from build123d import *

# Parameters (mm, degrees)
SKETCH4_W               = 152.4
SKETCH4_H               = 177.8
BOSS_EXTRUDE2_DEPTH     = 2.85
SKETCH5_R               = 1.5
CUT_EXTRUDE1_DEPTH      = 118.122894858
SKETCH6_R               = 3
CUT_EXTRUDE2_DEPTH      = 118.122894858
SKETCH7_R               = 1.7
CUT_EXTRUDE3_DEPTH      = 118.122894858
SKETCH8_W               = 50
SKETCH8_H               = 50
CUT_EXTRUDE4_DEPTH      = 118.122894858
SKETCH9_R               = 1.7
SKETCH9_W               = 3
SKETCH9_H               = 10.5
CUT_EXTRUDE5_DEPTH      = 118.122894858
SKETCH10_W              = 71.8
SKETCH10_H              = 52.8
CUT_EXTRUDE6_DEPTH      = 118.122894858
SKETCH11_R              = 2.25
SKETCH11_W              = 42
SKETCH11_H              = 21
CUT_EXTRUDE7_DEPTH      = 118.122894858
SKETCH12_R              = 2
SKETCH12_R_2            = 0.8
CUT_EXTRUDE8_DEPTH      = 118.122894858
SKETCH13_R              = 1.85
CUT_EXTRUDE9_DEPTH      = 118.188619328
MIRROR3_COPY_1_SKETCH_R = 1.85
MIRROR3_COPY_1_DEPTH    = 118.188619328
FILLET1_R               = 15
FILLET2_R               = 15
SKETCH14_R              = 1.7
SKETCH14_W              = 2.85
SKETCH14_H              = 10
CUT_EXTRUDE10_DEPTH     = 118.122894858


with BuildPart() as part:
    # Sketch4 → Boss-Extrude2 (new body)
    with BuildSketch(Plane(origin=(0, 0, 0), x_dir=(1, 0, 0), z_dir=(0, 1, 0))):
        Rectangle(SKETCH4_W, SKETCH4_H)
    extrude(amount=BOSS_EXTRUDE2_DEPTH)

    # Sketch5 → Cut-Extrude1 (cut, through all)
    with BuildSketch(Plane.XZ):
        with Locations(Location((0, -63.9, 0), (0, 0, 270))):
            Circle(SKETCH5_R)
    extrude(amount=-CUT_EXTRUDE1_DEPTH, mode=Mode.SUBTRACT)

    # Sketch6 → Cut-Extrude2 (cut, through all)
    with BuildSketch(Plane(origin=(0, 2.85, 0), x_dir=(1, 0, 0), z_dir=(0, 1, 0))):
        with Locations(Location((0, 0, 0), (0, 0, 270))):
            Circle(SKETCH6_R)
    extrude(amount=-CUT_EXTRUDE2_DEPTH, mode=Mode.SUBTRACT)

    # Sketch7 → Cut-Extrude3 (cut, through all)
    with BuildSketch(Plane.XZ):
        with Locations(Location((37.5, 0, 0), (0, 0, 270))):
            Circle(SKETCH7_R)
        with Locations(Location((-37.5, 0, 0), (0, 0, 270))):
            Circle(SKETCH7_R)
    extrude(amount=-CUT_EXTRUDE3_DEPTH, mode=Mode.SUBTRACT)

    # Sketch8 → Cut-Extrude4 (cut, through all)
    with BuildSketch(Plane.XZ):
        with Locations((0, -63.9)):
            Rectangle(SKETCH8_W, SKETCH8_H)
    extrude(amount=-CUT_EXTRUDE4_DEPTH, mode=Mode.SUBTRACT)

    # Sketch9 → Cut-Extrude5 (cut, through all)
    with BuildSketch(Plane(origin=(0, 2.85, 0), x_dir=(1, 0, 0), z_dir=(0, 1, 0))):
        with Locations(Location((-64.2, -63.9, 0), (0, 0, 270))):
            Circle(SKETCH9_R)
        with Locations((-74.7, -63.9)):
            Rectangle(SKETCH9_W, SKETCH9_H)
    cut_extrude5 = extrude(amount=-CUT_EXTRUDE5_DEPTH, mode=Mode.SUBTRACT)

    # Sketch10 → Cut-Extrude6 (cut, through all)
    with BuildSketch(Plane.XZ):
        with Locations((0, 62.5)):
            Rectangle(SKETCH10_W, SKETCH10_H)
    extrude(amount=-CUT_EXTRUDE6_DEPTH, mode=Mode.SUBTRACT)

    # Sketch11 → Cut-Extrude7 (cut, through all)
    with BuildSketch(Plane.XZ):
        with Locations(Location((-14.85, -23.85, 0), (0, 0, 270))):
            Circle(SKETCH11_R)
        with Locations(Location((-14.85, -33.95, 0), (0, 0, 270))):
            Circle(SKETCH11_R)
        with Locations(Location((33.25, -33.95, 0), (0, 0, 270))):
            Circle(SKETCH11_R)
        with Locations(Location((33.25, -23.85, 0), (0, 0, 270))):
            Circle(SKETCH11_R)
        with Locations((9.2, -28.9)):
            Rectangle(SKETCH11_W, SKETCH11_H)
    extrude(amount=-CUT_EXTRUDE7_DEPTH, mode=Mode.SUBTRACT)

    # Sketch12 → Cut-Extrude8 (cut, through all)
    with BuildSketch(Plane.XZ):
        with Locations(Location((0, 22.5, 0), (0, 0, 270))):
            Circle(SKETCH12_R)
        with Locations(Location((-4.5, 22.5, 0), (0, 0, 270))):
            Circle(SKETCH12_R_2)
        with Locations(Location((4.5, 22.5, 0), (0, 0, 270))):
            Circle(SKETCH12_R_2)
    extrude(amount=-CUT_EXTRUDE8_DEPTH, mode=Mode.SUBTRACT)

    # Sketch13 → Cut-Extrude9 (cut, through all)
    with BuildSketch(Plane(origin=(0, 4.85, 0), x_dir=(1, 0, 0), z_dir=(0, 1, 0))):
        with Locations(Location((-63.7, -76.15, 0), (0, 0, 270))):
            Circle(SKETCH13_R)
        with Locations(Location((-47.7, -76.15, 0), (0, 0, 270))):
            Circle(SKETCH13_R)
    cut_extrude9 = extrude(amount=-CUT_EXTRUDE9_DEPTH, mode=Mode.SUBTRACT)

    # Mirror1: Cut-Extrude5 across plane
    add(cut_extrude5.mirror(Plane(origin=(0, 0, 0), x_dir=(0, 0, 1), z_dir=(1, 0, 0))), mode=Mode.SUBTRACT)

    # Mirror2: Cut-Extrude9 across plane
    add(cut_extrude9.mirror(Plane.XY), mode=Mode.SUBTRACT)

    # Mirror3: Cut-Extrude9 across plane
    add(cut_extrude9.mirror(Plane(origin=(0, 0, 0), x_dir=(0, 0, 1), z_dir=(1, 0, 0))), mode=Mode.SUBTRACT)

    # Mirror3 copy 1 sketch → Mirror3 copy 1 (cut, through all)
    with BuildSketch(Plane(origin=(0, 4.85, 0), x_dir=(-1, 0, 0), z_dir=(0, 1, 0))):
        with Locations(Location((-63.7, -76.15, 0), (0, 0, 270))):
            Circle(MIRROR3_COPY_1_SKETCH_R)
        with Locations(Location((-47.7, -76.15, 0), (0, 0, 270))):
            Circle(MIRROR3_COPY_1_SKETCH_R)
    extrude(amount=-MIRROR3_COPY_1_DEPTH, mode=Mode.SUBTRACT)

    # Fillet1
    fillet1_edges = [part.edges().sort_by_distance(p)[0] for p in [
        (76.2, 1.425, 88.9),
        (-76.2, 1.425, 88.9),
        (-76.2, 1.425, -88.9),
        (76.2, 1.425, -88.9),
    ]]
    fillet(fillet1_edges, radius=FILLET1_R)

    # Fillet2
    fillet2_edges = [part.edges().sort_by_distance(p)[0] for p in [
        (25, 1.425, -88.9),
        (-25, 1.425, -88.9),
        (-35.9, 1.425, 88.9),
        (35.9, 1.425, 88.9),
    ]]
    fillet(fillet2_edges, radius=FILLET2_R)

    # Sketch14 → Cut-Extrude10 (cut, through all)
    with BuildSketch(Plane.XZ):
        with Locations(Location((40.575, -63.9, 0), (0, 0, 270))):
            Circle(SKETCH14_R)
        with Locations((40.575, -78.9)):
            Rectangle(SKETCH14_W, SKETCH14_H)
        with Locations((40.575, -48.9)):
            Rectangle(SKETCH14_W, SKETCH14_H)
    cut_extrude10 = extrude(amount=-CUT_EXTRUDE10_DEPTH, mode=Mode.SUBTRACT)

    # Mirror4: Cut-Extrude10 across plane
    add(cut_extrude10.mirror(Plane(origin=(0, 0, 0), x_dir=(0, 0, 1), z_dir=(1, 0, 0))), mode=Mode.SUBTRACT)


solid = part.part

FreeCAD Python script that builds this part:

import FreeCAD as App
import Part
import Sketcher
from FreeCAD import Vector


def edges_at(feature, points):
    """Names of the edges that pass closest to the given points."""
    edges = feature.Shape.Edges
    near = lambda p: min(range(len(edges)), key=lambda i: edges[i].distToShape(Part.Vertex(*p))[0])
    return sorted({f"Edge{near(p) + 1}" for p in points})


def add_polygon(sketch, points):
    """Adds a closed chain of lines whose ends are joined by coincident constraints."""
    first, n = sketch.GeometryCount, len(points)
    for a, b in zip(points, points[1:] + points[:1]):
        sketch.addGeometry(Part.LineSegment(App.Vector(*a, 0), App.Vector(*b, 0)), False)
    for i in range(n):
        sketch.addConstraint(Sketcher.Constraint("Coincident", first + i, 2, first + (i + 1) % n, 1))

doc = App.newDocument("Part")
body = doc.addObject("PartDesign::Body", "Body")

sketch1 = body.newObject("Sketcher::SketchObject", "Sketch")
sketch1.AttachmentSupport = (doc.getObject("XZ_Plane"), [""])
sketch1.MapMode = "FlatFace"
add_polygon(sketch1, [(-76, -89), (-76, 89), (76, 89), (76, -89)])
sketch1.addConstraint(Sketcher.Constraint("Vertical", 0))
sketch1.addConstraint(Sketcher.Constraint("Horizontal", 1))
sketch1.addConstraint(Sketcher.Constraint("Vertical", 2))
sketch1.addConstraint(Sketcher.Constraint("Horizontal", 3))
sketch1.addConstraint(Sketcher.Constraint("Symmetric", 0, 2, 2, 2, -1, 1))
sketch1.addConstraint(Sketcher.Constraint("DistanceX", 1, 1, 1, 2, 152.4))
sketch1.addConstraint(Sketcher.Constraint("DistanceY", 0, 1, 0, 2, 177.8))
pad1 = body.newObject("PartDesign::Pad", "Pad")
pad1.Profile = sketch1
pad1.Length = 2.85
pad1.Reversed = True

sketch2 = body.newObject("Sketcher::SketchObject", "Sketch001")
sketch2.AttachmentSupport = (doc.getObject("XZ_Plane"), [""])
sketch2.MapMode = "FlatFace"
sketch2.addGeometry(Part.Circle(Vector(0, -63.9, 0), Vector(0, 0, 1), 1.5), False)
sketch2.addConstraint(Sketcher.Constraint("PointOnObject", 0, 3, -2))
sketch2.addConstraint(Sketcher.Constraint("Diameter", 0, 3.0))
sketch2.addConstraint(Sketcher.Constraint("DistanceY", 0, 3, -1, 1, 63.9))
pocket1 = body.newObject("PartDesign::Pocket", "Pocket")
pocket1.Profile = sketch2
pocket1.Type = "ThroughAll"

sketch3 = body.newObject("Sketcher::SketchObject", "Sketch002")
sketch3.AttachmentSupport = (doc.getObject("XZ_Plane"), [""])
sketch3.MapMode = "FlatFace"
sketch3.AttachmentOffset = App.Placement(Vector(0, 0, -2.85), App.Rotation())
sketch3.addGeometry(Part.Circle(Vector(0, 0, 0), Vector(0, 0, 1), 3), False)
sketch3.addConstraint(Sketcher.Constraint("Coincident", 0, 3, -1, 1))
sketch3.addConstraint(Sketcher.Constraint("Diameter", 0, 6.0))
pocket2 = body.newObject("PartDesign::Pocket", "Pocket001")
pocket2.Profile = sketch3
pocket2.Type = "ThroughAll"
pocket2.Reversed = True

sketch4 = body.newObject("Sketcher::SketchObject", "Sketch003")
sketch4.AttachmentSupport = (doc.getObject("XZ_Plane"), [""])
sketch4.MapMode = "FlatFace"
sketch4.addGeometry(Part.Circle(Vector(37.5, 0, 0), Vector(0, 0, 1), 1.7), False)
sketch4.addGeometry(Part.Circle(Vector(-37.5, 0, 0), Vector(0, 0, 1), 1.7), False)
sketch4.addConstraint(Sketcher.Constraint("Equal", 0, 1))
sketch4.addConstraint(Sketcher.Constraint("Symmetric", 0, 3, 1, 3, -1, 1))
sketch4.addConstraint(Sketcher.Constraint("PointOnObject", 0, 3, -1))
sketch4.addConstraint(Sketcher.Constraint("Diameter", 0, 3.4))
sketch4.addConstraint(Sketcher.Constraint("DistanceX", 1, 3, 0, 3, 75.0))
pocket3 = body.newObject("PartDesign::Pocket", "Pocket002")
pocket3.Profile = sketch4
pocket3.Type = "ThroughAll"

sketch5 = body.newObject("Sketcher::SketchObject", "Sketch004")
sketch5.AttachmentSupport = (doc.getObject("XZ_Plane"), [""])
sketch5.MapMode = "FlatFace"
add_polygon(sketch5, [(-25, -39), (-25, -89), (25, -89), (25, -39)])
sketch5.addConstraint(Sketcher.Constraint("Vertical", 0))
sketch5.addConstraint(Sketcher.Constraint("Horizontal", 1))
sketch5.addConstraint(Sketcher.Constraint("Vertical", 2))
sketch5.addConstraint(Sketcher.Constraint("Horizontal", 3))
sketch5.addConstraint(Sketcher.Constraint("Equal", 3, 0))
sketch5.addConstraint(Sketcher.Constraint("DistanceX", 1, 1, 1, 2, 50.0))
sketch5.addConstraint(Sketcher.Constraint("DistanceX", 0, 2, -1, 1, 25.0))
sketch5.addConstraint(Sketcher.Constraint("DistanceY", 0, 2, -1, 1, 88.9))
pocket4 = body.newObject("PartDesign::Pocket", "Pocket003")
pocket4.Profile = sketch5
pocket4.Type = "ThroughAll"

sketch6 = body.newObject("Sketcher::SketchObject", "Sketch005")
sketch6.AttachmentSupport = (doc.getObject("XZ_Plane"), [""])
sketch6.MapMode = "FlatFace"
sketch6.AttachmentOffset = App.Placement(Vector(0, 0, -2.85), App.Rotation())
sketch6.addGeometry(Part.Circle(Vector(-64.2, 63.9, 0), Vector(0, 0, 1), 1.7), False)
add_polygon(sketch6, [(-76.2, 58.6), (-76.2, 69.2), (-73.2, 69.2), (-73.2, 58.6)])
sketch6.addConstraint(Sketcher.Constraint("Vertical", 1))
sketch6.addConstraint(Sketcher.Constraint("Horizontal", 2))
sketch6.addConstraint(Sketcher.Constraint("Vertical", 3))
sketch6.addConstraint(Sketcher.Constraint("Horizontal", 4))
sketch6.addConstraint(Sketcher.Constraint("Diameter", 0, 3.4))
sketch6.addConstraint(Sketcher.Constraint("DistanceX", 2, 1, 2, 2, 3.0))
sketch6.addConstraint(Sketcher.Constraint("DistanceY", 1, 1, 1, 2, 10.5))
sketch6.addConstraint(Sketcher.Constraint("DistanceX", 1, 2, 0, 3, 12.0))
sketch6.addConstraint(Sketcher.Constraint("DistanceX", 0, 3, -1, 1, 64.2))
sketch6.addConstraint(Sketcher.Constraint("DistanceY", -1, 1, 0, 3, 63.9))
sketch6.addConstraint(Sketcher.Constraint("DistanceY", -1, 1, 1, 2, 69.15))
pocket5 = body.newObject("PartDesign::Pocket", "Pocket004")
pocket5.Profile = sketch6
pocket5.Type = "ThroughAll"
pocket5.Reversed = True

sketch7 = body.newObject("Sketcher::SketchObject", "Sketch006")
sketch7.AttachmentSupport = (doc.getObject("XZ_Plane"), [""])
sketch7.MapMode = "FlatFace"
add_polygon(sketch7, [(-36, 89), (-36, 36), (36, 36), (36, 89)])
sketch7.addConstraint(Sketcher.Constraint("Vertical", 0))
sketch7.addConstraint(Sketcher.Constraint("Horizontal", 1))
sketch7.addConstraint(Sketcher.Constraint("Vertical", 2))
sketch7.addConstraint(Sketcher.Constraint("Horizontal", 3))
sketch7.addConstraint(Sketcher.Constraint("DistanceX", 1, 1, 1, 2, 71.8))
sketch7.addConstraint(Sketcher.Constraint("DistanceY", 0, 2, 0, 1, 52.8))
sketch7.addConstraint(Sketcher.Constraint("DistanceX", 0, 2, -1, 1, 35.9))
sketch7.addConstraint(Sketcher.Constraint("DistanceY", -1, 1, 0, 2, 36.1))
pocket6 = body.newObject("PartDesign::Pocket", "Pocket005")
pocket6.Profile = sketch7
pocket6.Type = "ThroughAll"

sketch8 = body.newObject("Sketcher::SketchObject", "Sketch007")
sketch8.AttachmentSupport = (doc.getObject("XZ_Plane"), [""])
sketch8.MapMode = "FlatFace"
sketch8.addGeometry(Part.Circle(Vector(-14.8, -23.9, 0), Vector(0, 0, 1), 2.2), False)
sketch8.addGeometry(Part.Circle(Vector(-14.8, -34, 0), Vector(0, 0, 1), 2.2), False)
sketch8.addGeometry(Part.Circle(Vector(33.2, -34, 0), Vector(0, 0, 1), 2.2), False)
sketch8.addGeometry(Part.Circle(Vector(33.2, -23.9, 0), Vector(0, 0, 1), 2.2), False)
add_polygon(sketch8, [(-11.8, -18.4), (-11.8, -39.4), (30.2, -39.4), (30.2, -18.4)])
sketch8.addConstraint(Sketcher.Constraint("Vertical", 4))
sketch8.addConstraint(Sketcher.Constraint("Horizontal", 5))
sketch8.addConstraint(Sketcher.Constraint("Vertical", 6))
sketch8.addConstraint(Sketcher.Constraint("Horizontal", 7))
sketch8.addConstraint(Sketcher.Constraint("Equal", 0, 1))
sketch8.addConstraint(Sketcher.Constraint("Equal", 1, 2))
sketch8.addConstraint(Sketcher.Constraint("Equal", 2, 3))
sketch8.addConstraint(Sketcher.Constraint("Horizontal", 1, 3, 2, 3))
sketch8.addConstraint(Sketcher.Constraint("Horizontal", 0, 3, 3, 3))
sketch8.addConstraint(Sketcher.Constraint("Vertical", 0, 3, 1, 3))
sketch8.addConstraint(Sketcher.Constraint("Vertical", 2, 3, 3, 3))
sketch8.addConstraint(Sketcher.Constraint("Diameter", 0, 4.5))
sketch8.addConstraint(Sketcher.Constraint("DistanceX", 5, 1, 5, 2, 42.0))
sketch8.addConstraint(Sketcher.Constraint("DistanceY", 4, 2, 4, 1, 21.0))
sketch8.addConstraint(Sketcher.Constraint("DistanceX", 4, 2, -1, 1, 11.8))
sketch8.addConstraint(Sketcher.Constraint("DistanceY", 4, 2, -1, 1, 39.4))
sketch8.addConstraint(Sketcher.Constraint("DistanceY", 1, 3, 0, 3, 10.1))
sketch8.addConstraint(Sketcher.Constraint("DistanceX", 1, 3, 2, 3, 48.1))
sketch8.addConstraint(Sketcher.Constraint("DistanceX", 0, 3, -1, 1, 14.85))
sketch8.addConstraint(Sketcher.Constraint("DistanceY", 0, 3, -1, 1, 23.85))
pocket7 = body.newObject("PartDesign::Pocket", "Pocket006")
pocket7.Profile = sketch8
pocket7.Type = "ThroughAll"

sketch9 = body.newObject("Sketcher::SketchObject", "Sketch008")
sketch9.AttachmentSupport = (doc.getObject("XZ_Plane"), [""])
sketch9.MapMode = "FlatFace"
sketch9.addGeometry(Part.Circle(Vector(0, 22.5, 0), Vector(0, 0, 1), 2), False)
sketch9.addGeometry(Part.Circle(Vector(-4.5, 22.5, 0), Vector(0, 0, 1), 0.8), False)
sketch9.addGeometry(Part.Circle(Vector(4.5, 22.5, 0), Vector(0, 0, 1), 0.8), False)
sketch9.addConstraint(Sketcher.Constraint("Equal", 1, 2))
sketch9.addConstraint(Sketcher.Constraint("Symmetric", 1, 3, 2, 3, -2))
sketch9.addConstraint(Sketcher.Constraint("PointOnObject", 0, 3, -2))
sketch9.addConstraint(Sketcher.Constraint("Horizontal", 0, 3, 1, 3))
sketch9.addConstraint(Sketcher.Constraint("Diameter", 0, 4.0))
sketch9.addConstraint(Sketcher.Constraint("Diameter", 1, 1.6))
sketch9.addConstraint(Sketcher.Constraint("DistanceX", 1, 3, 2, 3, 9.0))
sketch9.addConstraint(Sketcher.Constraint("DistanceY", -1, 1, 0, 3, 22.5))
pocket8 = body.newObject("PartDesign::Pocket", "Pocket007")
pocket8.Profile = sketch9
pocket8.Type = "ThroughAll"

sketch10 = body.newObject("Sketcher::SketchObject", "Sketch009")
sketch10.AttachmentSupport = (doc.getObject("XZ_Plane"), [""])
sketch10.MapMode = "FlatFace"
sketch10.AttachmentOffset = App.Placement(Vector(0, 0, -4.85), App.Rotation())
sketch10.addGeometry(Part.Circle(Vector(-63.7, 76.2, 0), Vector(0, 0, 1), 1.9), False)
sketch10.addGeometry(Part.Circle(Vector(-47.7, 76.2, 0), Vector(0, 0, 1), 1.9), False)
sketch10.addConstraint(Sketcher.Constraint("Equal", 0, 1))
sketch10.addConstraint(Sketcher.Constraint("Horizontal", 0, 3, 1, 3))
sketch10.addConstraint(Sketcher.Constraint("Diameter", 0, 3.7))
sketch10.addConstraint(Sketcher.Constraint("DistanceX", 0, 3, 1, 3, 16.0))
sketch10.addConstraint(Sketcher.Constraint("DistanceX", 0, 3, -1, 1, 63.7))
sketch10.addConstraint(Sketcher.Constraint("DistanceY", -1, 1, 0, 3, 76.15))
pocket9 = body.newObject("PartDesign::Pocket", "Pocket008")
pocket9.Profile = sketch10
pocket9.Type = "ThroughAll"
pocket9.Reversed = True
doc.recompute()

mirrored = body.newObject("PartDesign::Mirrored", "Mirrored")
mirrored.Originals = [pocket5]
mirrored.MirrorPlane = (doc.getObject("YZ_Plane"), [""])
body.Tip = mirrored
doc.recompute()

mirrored2 = body.newObject("PartDesign::Mirrored", "Mirrored001")
mirrored2.Originals = [pocket9]
mirrored2.MirrorPlane = (doc.getObject("XY_Plane"), [""])
body.Tip = mirrored2
doc.recompute()

mirrored3 = body.newObject("PartDesign::Mirrored", "Mirrored002")
mirrored3.Originals = [pocket9]
mirrored3.MirrorPlane = (doc.getObject("YZ_Plane"), [""])
body.Tip = mirrored3

sketch11 = body.newObject("Sketcher::SketchObject", "Sketch010")
sketch11.AttachmentSupport = (doc.getObject("XZ_Plane"), [""])
sketch11.MapMode = "FlatFace"
sketch11.AttachmentOffset = App.Placement(Vector(0, 0, -4.85), App.Rotation())
sketch11.addGeometry(Part.Circle(Vector(63.7, -76.2, 0), Vector(0, 0, 1), 1.9), False)
sketch11.addGeometry(Part.Circle(Vector(47.7, -76.2, 0), Vector(0, 0, 1), 1.9), False)
sketch11.addConstraint(Sketcher.Constraint("Equal", 0, 1))
sketch11.addConstraint(Sketcher.Constraint("Horizontal", 0, 3, 1, 3))
sketch11.addConstraint(Sketcher.Constraint("Diameter", 0, 3.7))
sketch11.addConstraint(Sketcher.Constraint("DistanceX", 1, 3, 0, 3, 16.0))
sketch11.addConstraint(Sketcher.Constraint("DistanceX", -1, 1, 0, 3, 63.7))
sketch11.addConstraint(Sketcher.Constraint("DistanceY", 0, 3, -1, 1, 76.15))
pocket10 = body.newObject("PartDesign::Pocket", "Pocket009")
pocket10.Profile = sketch11
pocket10.Type = "ThroughAll"
pocket10.Reversed = True
doc.recompute()

fillet = body.newObject("PartDesign::Fillet", "Fillet")
fillet.Base = (pocket10, edges_at(pocket10, [
    (76.2, 1.425, 88.9),
    (-76.2, 1.425, 88.9),
    (-76.2, 1.425, -88.9),
    (76.2, 1.425, -88.9),
]))
fillet.Radius = 15
doc.recompute()

fillet2 = body.newObject("PartDesign::Fillet", "Fillet001")
fillet2.Base = (fillet, edges_at(fillet, [
    (25, 1.425, -88.9),
    (-25, 1.425, -88.9),
    (-35.9, 1.425, 88.9),
    (35.9, 1.425, 88.9),
]))
fillet2.Radius = 15

sketch12 = body.newObject("Sketcher::SketchObject", "Sketch011")
sketch12.AttachmentSupport = (doc.getObject("XZ_Plane"), [""])
sketch12.MapMode = "FlatFace"
sketch12.addGeometry(Part.Circle(Vector(40.6, -63.9, 0), Vector(0, 0, 1), 1.7), False)
add_polygon(sketch12, [(39.1, -73.9), (39.1, -83.9), (42, -83.9), (42, -73.9)])
add_polygon(sketch12, [(39.1, -43.9), (39.1, -53.9), (42, -53.9), (42, -43.9)])
sketch12.addConstraint(Sketcher.Constraint("Vertical", 1))
sketch12.addConstraint(Sketcher.Constraint("Horizontal", 2))
sketch12.addConstraint(Sketcher.Constraint("Vertical", 3))
sketch12.addConstraint(Sketcher.Constraint("Horizontal", 4))
sketch12.addConstraint(Sketcher.Constraint("Vertical", 5))
sketch12.addConstraint(Sketcher.Constraint("Horizontal", 6))
sketch12.addConstraint(Sketcher.Constraint("Vertical", 7))
sketch12.addConstraint(Sketcher.Constraint("Horizontal", 8))
sketch12.addConstraint(Sketcher.Constraint("Vertical", 4, 2, 5, 2))
sketch12.addConstraint(Sketcher.Constraint("Vertical", 3, 2, 6, 2))
sketch12.addConstraint(Sketcher.Constraint("Equal", 3, 5))
sketch12.addConstraint(Sketcher.Constraint("Diameter", 0, 3.4))
sketch12.addConstraint(Sketcher.Constraint("DistanceY", 1, 2, 1, 1, 10.0))
sketch12.addConstraint(Sketcher.Constraint("DistanceX", -1, 1, 2, 2, 42.0))
sketch12.addConstraint(Sketcher.Constraint("DistanceY", 1, 2, 0, 3, 20.0))
sketch12.addConstraint(Sketcher.Constraint("DistanceY", 0, 3, 5, 2, 10.0))
sketch12.addConstraint(Sketcher.Constraint("DistanceX", 2, 1, 2, 2, 2.85))
sketch12.addConstraint(Sketcher.Constraint("DistanceY", 0, 3, -1, 1, 63.9))
sketch12.addConstraint(Sketcher.Constraint("DistanceX", -1, 1, 0, 3, 40.575))
pocket11 = body.newObject("PartDesign::Pocket", "Pocket010")
pocket11.Profile = sketch12
pocket11.Type = "ThroughAll"
doc.recompute()

mirrored4 = body.newObject("PartDesign::Mirrored", "Mirrored003")
mirrored4.Originals = [pocket11]
mirrored4.MirrorPlane = (doc.getObject("YZ_Plane"), [""])
body.Tip = mirrored4

doc.recompute()
